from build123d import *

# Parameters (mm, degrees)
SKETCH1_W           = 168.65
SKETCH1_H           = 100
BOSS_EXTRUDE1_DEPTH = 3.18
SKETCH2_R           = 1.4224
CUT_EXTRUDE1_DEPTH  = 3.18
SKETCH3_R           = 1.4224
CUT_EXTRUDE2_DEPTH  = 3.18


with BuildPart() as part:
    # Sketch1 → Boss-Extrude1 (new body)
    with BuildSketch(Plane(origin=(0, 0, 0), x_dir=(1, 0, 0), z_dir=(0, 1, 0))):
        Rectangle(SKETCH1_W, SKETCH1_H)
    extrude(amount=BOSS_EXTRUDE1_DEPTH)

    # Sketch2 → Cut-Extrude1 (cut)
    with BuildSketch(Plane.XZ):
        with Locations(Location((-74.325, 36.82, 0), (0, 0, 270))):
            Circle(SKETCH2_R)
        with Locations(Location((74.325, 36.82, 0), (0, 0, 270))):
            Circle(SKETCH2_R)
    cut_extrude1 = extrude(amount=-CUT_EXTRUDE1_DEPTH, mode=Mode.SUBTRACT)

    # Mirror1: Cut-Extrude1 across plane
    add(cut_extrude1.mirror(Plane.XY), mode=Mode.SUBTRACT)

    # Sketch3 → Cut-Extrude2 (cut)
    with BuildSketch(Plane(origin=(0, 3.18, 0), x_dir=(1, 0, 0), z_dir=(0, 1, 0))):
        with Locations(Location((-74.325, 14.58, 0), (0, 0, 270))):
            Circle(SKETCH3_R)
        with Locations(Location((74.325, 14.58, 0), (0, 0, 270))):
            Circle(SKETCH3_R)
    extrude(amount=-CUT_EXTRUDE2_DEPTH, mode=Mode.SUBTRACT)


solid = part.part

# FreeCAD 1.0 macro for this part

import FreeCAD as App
import Part
import Sketcher
from FreeCAD import Vector
Q = App.Units.Quantity


def add_polygon(sketch, points):
    """Adds a closed chain of lines whose ends are joined by coincident constraints."""
    first, n = sketch.GeometryCount, len(points)
    for a, b in zip(points, points[1:] + points[:1]):
        sketch.addGeometry(Part.LineSegment(App.Vector(*a, 0), App.Vector(*b, 0)), False)
    for i in range(n):
        sketch.addConstraint(Sketcher.Constraint("Coincident", first + i, 2, first + (i + 1) % n, 1))

doc = App.newDocument("Part")
body = doc.addObject("PartDesign::Body", "Body")

# Sketch on XZ plane
sketch1 = body.newObject("Sketcher::SketchObject", "Sketch")
sketch1.AttachmentSupport = (doc.getObject("XZ_Plane"), [""])
sketch1.MapMode = "FlatFace"
add_polygon(sketch1, [(-84.325, -50), (-84.325, 50), (84.325, 50), (84.325, -50)])  # lines 0-3
sketch1.addConstraint([
    Sketcher.Constraint("Vertical", 0),
    Sketcher.Constraint("Horizontal", 1),
    Sketcher.Constraint("Vertical", 2),
    Sketcher.Constraint("Horizontal", 3),
    Sketcher.Constraint("Symmetric", 0, 2, 2, 2, -1, 1),
    Sketcher.Constraint("DistanceY", 0, 1, 0, 2, Q("100 mm")),
    Sketcher.Constraint("DistanceX", 1, 1, 1, 2, Q("168.65 mm")),
])
pad1 = body.newObject("PartDesign::Pad", "Pad")
pad1.Profile = sketch1
pad1.Length = 3.18
pad1.Reversed = True

# Sketch on XZ plane
sketch2 = body.newObject("Sketcher::SketchObject", "Sketch001")
sketch2.AttachmentSupport = (doc.getObject("XZ_Plane"), [""])
sketch2.MapMode = "FlatFace"
sketch2.addGeometry([
    Part.Circle(Vector(-74.325, 36.82, 0), Vector(0, 0, 1), 1.4224),
    Part.Circle(Vector(74.325, 36.82, 0), Vector(0, 0, 1), 1.4224),
], False)
sketch2.addConstraint([
    Sketcher.Constraint("Equal", 0, 1),
    Sketcher.Constraint("Symmetric", 0, 3, 1, 3, -2),
    Sketcher.Constraint("Diameter", 0, Q("2.8448 mm")),
    Sketcher.Constraint("DistanceY", -1, 1, 0, 3, Q("36.82 mm")),
    Sketcher.Constraint("DistanceX", 0, 3, 1, 3, Q("148.65 mm")),
])
pocket1 = body.newObject("PartDesign::Pocket", "Pocket")
pocket1.Profile = sketch2
pocket1.Length = 3.18
doc.recompute()

mirrored = body.newObject("PartDesign::Mirrored", "Mirrored")
mirrored.Originals = [pocket1]
mirrored.MirrorPlane = (doc.getObject("XY_Plane"), [""])
body.Tip = mirrored

# Sketch on XZ plane
sketch3 = body.newObject("Sketcher::SketchObject", "Sketch002")
sketch3.AttachmentSupport = (doc.getObject("XZ_Plane"), [""])
sketch3.MapMode = "FlatFace"
sketch3.AttachmentOffset = App.Placement(Vector(0, 0, -3.18), App.Rotation())
sketch3.addGeometry([
    Part.Circle(Vector(-74.325, -14.58, 0), Vector(0, 0, 1), 1.4224),
    Part.Circle(Vector(74.325, -14.58, 0), Vector(0, 0, 1), 1.4224),
], False)
sketch3.addConstraint([
    Sketcher.Constraint("Equal", 0, 1),
    Sketcher.Constraint("Symmetric", 0, 3, 1, 3, -2),
    Sketcher.Constraint("Diameter", 0, Q("2.8448 mm")),
    Sketcher.Constraint("DistanceY", 0, 3, -1, 1, Q("14.58 mm")),
    Sketcher.Constraint("DistanceX", 0, 3, 1, 3, Q("148.65 mm")),
])
pocket2 = body.newObject("PartDesign::Pocket", "Pocket001")
pocket2.Profile = sketch3
pocket2.Length = 3.18
pocket2.Reversed = True

doc.recompute()
